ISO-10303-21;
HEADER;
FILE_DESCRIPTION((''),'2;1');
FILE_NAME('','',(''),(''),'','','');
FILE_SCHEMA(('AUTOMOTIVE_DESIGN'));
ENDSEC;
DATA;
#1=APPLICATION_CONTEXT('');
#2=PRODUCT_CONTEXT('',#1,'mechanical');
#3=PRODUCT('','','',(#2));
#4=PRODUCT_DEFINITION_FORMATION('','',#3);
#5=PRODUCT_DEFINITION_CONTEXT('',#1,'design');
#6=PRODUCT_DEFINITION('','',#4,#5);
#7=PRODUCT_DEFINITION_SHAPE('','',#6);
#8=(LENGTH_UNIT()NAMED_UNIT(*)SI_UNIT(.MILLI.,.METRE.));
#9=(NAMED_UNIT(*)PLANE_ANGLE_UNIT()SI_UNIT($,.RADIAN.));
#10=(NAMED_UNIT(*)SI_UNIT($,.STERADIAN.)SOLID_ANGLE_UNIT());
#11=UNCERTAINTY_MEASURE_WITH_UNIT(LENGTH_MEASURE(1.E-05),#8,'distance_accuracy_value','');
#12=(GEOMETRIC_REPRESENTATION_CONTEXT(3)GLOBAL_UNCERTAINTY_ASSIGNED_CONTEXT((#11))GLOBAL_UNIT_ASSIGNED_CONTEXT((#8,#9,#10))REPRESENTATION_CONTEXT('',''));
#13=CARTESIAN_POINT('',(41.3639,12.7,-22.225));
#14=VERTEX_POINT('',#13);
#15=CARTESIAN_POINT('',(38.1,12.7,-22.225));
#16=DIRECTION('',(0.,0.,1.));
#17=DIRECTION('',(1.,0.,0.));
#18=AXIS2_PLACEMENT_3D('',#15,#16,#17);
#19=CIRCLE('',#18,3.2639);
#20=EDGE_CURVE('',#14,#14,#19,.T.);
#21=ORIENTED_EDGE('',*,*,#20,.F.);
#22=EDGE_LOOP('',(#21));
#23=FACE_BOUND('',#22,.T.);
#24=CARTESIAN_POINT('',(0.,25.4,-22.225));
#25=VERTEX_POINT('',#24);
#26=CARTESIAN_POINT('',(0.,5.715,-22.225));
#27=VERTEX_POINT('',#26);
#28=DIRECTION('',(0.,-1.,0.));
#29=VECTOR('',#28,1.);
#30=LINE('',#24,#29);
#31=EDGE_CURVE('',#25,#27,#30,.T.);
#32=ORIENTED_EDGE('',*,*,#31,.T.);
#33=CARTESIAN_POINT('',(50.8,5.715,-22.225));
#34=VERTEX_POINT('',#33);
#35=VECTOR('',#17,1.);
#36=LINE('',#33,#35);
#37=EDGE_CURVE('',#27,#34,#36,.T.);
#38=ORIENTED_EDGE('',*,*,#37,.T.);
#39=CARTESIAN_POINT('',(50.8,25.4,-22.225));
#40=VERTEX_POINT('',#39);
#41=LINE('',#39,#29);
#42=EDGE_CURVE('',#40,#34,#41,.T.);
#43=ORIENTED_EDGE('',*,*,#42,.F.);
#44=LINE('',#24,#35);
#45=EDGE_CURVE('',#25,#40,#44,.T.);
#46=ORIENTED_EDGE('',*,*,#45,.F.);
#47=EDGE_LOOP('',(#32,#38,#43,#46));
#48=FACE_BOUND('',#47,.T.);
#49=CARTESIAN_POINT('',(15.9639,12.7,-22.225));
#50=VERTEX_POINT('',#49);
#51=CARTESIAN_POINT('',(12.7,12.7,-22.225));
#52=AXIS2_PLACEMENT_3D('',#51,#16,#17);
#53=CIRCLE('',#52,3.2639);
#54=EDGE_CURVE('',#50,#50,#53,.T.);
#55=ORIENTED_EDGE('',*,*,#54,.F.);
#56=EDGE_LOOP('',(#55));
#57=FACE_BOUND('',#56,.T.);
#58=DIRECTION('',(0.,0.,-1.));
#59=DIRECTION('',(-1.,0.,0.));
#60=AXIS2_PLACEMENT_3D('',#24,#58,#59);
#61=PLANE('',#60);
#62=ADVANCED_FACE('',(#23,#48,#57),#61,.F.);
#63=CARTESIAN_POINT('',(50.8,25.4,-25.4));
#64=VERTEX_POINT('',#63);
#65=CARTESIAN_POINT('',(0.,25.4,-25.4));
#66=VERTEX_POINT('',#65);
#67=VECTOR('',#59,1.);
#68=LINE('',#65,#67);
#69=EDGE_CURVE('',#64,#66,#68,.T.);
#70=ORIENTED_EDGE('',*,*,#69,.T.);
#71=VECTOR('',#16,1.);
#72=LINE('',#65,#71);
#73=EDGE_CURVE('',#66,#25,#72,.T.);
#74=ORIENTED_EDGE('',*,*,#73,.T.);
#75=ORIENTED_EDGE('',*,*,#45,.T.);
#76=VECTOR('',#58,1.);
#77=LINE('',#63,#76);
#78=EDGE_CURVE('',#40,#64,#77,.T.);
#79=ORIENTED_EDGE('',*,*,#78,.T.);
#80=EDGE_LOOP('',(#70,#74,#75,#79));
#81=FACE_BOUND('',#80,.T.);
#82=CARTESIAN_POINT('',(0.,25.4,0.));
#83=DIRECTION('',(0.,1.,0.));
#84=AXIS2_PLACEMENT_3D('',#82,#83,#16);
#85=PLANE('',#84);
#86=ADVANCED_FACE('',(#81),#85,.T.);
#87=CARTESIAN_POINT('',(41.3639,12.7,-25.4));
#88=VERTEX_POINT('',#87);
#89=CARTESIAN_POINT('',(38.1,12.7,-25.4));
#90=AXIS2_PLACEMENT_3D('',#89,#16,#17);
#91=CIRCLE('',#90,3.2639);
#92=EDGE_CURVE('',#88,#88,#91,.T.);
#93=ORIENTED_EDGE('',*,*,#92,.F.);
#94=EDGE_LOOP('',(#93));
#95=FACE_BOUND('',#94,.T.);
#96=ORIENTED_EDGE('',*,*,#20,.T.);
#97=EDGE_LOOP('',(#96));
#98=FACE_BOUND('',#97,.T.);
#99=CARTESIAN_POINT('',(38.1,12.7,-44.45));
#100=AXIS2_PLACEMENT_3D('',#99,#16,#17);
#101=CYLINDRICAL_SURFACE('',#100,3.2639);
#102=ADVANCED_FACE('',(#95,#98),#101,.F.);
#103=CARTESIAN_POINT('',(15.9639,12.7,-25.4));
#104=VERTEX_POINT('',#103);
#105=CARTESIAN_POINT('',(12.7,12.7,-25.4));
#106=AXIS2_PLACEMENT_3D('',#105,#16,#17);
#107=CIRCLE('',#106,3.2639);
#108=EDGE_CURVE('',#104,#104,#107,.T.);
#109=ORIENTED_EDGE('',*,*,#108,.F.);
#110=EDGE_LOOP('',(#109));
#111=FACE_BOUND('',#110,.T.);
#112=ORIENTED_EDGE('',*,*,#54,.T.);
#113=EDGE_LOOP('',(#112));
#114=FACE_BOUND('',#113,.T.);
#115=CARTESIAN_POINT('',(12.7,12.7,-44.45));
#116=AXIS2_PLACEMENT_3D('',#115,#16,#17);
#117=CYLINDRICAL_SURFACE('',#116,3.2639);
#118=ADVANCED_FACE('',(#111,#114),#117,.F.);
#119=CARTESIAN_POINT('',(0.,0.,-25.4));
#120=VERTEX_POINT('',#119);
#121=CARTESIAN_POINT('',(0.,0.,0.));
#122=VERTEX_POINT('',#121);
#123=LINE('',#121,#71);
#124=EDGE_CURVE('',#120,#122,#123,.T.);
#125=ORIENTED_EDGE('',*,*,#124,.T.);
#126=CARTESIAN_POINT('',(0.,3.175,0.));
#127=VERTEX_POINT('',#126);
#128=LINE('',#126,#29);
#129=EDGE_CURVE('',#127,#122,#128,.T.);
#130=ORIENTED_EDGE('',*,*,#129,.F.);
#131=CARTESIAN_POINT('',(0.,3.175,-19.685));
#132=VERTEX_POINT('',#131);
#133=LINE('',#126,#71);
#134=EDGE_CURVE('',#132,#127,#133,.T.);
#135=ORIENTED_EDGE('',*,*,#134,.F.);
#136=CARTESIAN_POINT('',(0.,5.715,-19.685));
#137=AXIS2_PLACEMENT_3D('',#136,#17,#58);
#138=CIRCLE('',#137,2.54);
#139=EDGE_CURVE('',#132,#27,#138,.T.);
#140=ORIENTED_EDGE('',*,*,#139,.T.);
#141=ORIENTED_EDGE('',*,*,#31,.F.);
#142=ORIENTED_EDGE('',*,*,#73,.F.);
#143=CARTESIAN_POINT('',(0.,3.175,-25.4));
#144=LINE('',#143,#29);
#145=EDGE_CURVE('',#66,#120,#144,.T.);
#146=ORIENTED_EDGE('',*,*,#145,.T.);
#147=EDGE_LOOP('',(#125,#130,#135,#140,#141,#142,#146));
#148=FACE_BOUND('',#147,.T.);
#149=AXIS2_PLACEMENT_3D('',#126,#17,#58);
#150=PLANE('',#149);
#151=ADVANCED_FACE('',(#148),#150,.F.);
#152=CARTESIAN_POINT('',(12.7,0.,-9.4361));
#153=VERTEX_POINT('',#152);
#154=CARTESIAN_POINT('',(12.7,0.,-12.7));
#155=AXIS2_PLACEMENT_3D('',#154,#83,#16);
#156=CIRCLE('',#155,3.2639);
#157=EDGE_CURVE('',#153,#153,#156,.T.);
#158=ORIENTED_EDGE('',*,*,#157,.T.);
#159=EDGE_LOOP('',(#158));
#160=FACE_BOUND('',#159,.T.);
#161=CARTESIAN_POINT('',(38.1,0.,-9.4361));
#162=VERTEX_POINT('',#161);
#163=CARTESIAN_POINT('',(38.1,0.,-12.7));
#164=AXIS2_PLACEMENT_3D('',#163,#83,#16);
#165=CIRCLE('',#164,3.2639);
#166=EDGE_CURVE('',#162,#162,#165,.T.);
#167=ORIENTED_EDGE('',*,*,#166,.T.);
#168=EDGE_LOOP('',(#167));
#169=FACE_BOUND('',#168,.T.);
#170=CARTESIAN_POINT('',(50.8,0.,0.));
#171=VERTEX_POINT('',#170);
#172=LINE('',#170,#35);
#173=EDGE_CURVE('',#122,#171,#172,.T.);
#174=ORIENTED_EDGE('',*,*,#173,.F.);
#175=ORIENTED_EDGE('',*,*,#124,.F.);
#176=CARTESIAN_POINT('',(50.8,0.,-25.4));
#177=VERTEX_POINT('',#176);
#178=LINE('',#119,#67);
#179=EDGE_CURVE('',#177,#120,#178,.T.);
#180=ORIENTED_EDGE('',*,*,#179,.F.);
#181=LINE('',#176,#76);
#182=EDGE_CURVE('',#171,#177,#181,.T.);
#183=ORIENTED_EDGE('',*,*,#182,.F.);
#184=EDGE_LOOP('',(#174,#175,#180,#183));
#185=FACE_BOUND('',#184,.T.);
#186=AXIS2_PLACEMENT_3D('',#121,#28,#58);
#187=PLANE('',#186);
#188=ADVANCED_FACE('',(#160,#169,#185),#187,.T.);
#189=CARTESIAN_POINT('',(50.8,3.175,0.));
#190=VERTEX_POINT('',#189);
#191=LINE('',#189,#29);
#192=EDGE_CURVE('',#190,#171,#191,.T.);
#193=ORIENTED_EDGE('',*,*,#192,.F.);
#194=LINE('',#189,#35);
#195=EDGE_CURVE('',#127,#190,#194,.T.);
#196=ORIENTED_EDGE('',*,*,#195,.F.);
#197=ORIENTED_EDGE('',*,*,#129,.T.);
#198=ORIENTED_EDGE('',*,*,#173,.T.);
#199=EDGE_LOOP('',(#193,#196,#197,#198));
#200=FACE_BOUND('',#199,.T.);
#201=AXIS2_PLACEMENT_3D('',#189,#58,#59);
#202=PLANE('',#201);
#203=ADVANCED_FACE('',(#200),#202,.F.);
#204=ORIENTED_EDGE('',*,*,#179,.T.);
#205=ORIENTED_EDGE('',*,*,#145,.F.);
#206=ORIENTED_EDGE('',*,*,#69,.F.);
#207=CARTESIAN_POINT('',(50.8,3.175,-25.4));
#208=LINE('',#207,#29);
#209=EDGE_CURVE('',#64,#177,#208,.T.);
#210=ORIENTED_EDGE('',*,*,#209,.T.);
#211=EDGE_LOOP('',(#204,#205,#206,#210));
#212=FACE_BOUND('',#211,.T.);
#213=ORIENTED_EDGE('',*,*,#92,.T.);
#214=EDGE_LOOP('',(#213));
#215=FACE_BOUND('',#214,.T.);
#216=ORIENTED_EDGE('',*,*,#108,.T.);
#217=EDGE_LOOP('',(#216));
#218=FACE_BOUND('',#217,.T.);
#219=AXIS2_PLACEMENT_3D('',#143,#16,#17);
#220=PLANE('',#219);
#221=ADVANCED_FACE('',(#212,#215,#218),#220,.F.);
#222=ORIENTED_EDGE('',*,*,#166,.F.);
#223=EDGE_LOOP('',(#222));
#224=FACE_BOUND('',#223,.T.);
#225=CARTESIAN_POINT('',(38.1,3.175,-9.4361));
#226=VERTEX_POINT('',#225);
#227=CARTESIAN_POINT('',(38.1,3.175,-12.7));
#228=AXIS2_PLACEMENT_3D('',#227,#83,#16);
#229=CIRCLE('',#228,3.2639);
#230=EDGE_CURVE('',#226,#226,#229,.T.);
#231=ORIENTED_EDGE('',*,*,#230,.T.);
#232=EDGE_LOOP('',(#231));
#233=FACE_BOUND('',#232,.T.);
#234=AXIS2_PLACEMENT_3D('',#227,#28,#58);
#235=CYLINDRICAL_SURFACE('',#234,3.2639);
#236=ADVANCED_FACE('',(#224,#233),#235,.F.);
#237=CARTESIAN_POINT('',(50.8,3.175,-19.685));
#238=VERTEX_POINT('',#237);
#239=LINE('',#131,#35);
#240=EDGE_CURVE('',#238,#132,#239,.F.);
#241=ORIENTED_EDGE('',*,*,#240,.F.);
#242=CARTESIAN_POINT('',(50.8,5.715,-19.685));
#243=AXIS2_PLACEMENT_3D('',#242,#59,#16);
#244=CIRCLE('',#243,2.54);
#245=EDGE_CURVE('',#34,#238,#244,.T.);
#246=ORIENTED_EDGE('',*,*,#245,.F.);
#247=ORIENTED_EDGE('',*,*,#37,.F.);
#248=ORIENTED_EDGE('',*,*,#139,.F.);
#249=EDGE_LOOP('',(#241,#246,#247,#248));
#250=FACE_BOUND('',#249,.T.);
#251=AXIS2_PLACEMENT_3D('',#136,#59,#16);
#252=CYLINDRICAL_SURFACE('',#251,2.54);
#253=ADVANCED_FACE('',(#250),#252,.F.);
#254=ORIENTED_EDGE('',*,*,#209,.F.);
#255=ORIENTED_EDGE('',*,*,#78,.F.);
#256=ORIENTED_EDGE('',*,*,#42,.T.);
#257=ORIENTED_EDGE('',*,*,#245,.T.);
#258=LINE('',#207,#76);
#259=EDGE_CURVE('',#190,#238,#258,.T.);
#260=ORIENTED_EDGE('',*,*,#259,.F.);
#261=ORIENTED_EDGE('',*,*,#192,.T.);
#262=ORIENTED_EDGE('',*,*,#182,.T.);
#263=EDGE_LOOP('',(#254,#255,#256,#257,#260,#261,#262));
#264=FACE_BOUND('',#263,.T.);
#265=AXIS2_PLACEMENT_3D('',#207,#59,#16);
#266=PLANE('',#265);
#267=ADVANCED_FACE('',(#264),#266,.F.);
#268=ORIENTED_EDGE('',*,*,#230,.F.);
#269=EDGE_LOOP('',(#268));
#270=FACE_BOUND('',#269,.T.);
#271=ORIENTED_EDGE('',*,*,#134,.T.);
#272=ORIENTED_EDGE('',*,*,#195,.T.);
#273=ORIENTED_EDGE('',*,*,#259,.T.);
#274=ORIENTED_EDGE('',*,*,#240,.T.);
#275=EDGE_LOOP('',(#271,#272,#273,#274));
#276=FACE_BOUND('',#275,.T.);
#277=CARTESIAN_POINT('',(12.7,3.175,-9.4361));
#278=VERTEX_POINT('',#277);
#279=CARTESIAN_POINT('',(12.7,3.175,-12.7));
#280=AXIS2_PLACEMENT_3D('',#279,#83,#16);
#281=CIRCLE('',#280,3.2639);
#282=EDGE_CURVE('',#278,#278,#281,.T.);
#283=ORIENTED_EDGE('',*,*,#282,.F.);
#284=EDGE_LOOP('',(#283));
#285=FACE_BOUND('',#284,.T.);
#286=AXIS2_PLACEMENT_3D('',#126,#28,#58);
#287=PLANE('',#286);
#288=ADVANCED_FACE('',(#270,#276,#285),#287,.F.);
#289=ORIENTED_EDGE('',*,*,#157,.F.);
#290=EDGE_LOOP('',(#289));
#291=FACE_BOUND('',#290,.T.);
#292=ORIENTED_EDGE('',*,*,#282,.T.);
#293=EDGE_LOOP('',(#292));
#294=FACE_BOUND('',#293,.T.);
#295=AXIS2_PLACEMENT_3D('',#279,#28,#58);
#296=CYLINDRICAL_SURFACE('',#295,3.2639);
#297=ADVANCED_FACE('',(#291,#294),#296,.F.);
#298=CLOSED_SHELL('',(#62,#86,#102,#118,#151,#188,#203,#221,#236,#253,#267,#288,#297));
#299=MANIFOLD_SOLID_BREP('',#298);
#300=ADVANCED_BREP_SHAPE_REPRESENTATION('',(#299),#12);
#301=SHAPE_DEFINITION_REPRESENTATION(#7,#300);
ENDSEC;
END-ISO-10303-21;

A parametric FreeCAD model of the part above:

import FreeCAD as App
import Part
import Sketcher

V = App.Vector
Q = App.Units.Quantity


def edges_at(feature, points):
    """Names of the edges that pass closest to the given points."""
    edges = feature.Shape.Edges
    near = lambda p: min(range(len(edges)), key=lambda i: edges[i].distToShape(Part.Vertex(*p))[0])
    return sorted({f"Edge{near(p) + 1}" for p in points})

doc = App.newDocument("Part")
body = doc.addObject("PartDesign::Body", "Body")

sketch1 = doc.addObject("Sketcher::SketchObject", "Sketch")
body.addObject(sketch1)
sketch1.AttachmentSupport = (doc.XZ_Plane, [""])
sketch1.MapMode = "FlatFace"
sketch1.addGeometry([
    Part.LineSegment(V(0, -25.4, 0), V(0, 0, 0)),
    Part.LineSegment(V(0, 0, 0), V(50.8, 0, 0)),
    Part.LineSegment(V(50.8, 0, 0), V(50.8, -25.4, 0)),
    Part.LineSegment(V(50.8, -25.4, 0), V(0, -25.4, 0)),
    Part.Circle(V(12.7, -12.7, 0), V(0, 0, 1), 3.3),
    Part.Circle(V(38.1, -12.7, 0), V(0, 0, 1), 3.3),
], False)
sketch1.addConstraint([
    Sketcher.Constraint("Coincident", 0, 2, 1, 1),
    Sketcher.Constraint("Coincident", 1, 2, 2, 1),
    Sketcher.Constraint("Coincident", 2, 2, 3, 1),
    Sketcher.Constraint("Coincident", 3, 2, 0, 1),
    Sketcher.Constraint("Vertical", 0),
    Sketcher.Constraint("Horizontal", 1),
    Sketcher.Constraint("Vertical", 2),
    Sketcher.Constraint("Horizontal", 3),
    Sketcher.Constraint("Coincident", 0, 2, -1, 1),
    Sketcher.Constraint("Equal", 4, 5),
    Sketcher.Constraint("Horizontal", 4, 3, 5, 3),
    Sketcher.Constraint("DistanceX", 1, 1, 1, 2, Q("2 in")),
    Sketcher.Constraint("DistanceY", 0, 1, 0, 2, Q("1 in")),
    Sketcher.Constraint("Diameter", 4, Q("0.257 in")),
    Sketcher.Constraint("DistanceX", 4, 3, 5, 3, Q("1 in")),
    Sketcher.Constraint("DistanceX", -1, 1, 4, 3, Q("0.5 in")),
    Sketcher.Constraint("DistanceY", 4, 3, -1, 1, Q("0.5 in")),
])
pad1 = doc.addObject("PartDesign::Pad", "Pad")
body.addObject(pad1)
pad1.Profile = sketch1
pad1.Length = Q("0.125 in")
pad1.Reversed = True

sketch2 = doc.addObject("Sketcher::SketchObject", "Sketch001")
body.addObject(sketch2)
sketch2.AttachmentSupport = (doc.XZ_Plane, [""])
sketch2.MapMode = "FlatFace"
sketch2.AttachmentOffset = App.Placement(V(0, 0, -0.125 * 25.4), App.Rotation())
sketch2.addGeometry([
    Part.LineSegment(V(0, -25.4, 0), V(0, -22.2, 0)),
    Part.LineSegment(V(0, -22.2, 0), V(50.8, -22.2, 0)),
    Part.LineSegment(V(50.8, -22.2, 0), V(50.8, -25.4, 0)),
    Part.LineSegment(V(50.8, -25.4, 0), V(0, -25.4, 0)),
], False)
sketch2.addConstraint([
    Sketcher.Constraint("Coincident", 0, 2, 1, 1),
    Sketcher.Constraint("Coincident", 1, 2, 2, 1),
    Sketcher.Constraint("Coincident", 2, 2, 3, 1),
    Sketcher.Constraint("Coincident", 3, 2, 0, 1),
    Sketcher.Constraint("Vertical", 0),
    Sketcher.Constraint("Horizontal", 1),
    Sketcher.Constraint("Vertical", 2),
    Sketcher.Constraint("Horizontal", 3),
    Sketcher.Constraint("PointOnObject", 0, 2, -2),
    Sketcher.Constraint("DistanceX", 1, 1, 1, 2, Q("2 in")),
    Sketcher.Constraint("DistanceY", 2, 2, -1, 1, Q("1 in")),
    Sketcher.Constraint("DistanceY", 0, 1, 0, 2, Q("0.125 in")),
])
pad2 = doc.addObject("PartDesign::Pad", "Pad001")
body.addObject(pad2)
pad2.Profile = sketch2
pad2.Length = Q("0.875 in")
pad2.Reversed = True

sketch3 = doc.addObject("Sketcher::SketchObject", "Sketch002")
body.addObject(sketch3)
sketch3.AttachmentSupport = (doc.XY_Plane, [""])
sketch3.MapMode = "FlatFace"
sketch3.AttachmentOffset = App.Placement(V(0, 0, -0.875 * 25.4), App.Rotation())
sketch3.addGeometry([
    Part.Circle(V(38.1, 12.7, 0), V(0, 0, 1), 3.3),
    Part.Circle(V(12.7, 12.7, 0), V(0, 0, 1), 3.3),
], False)
sketch3.addConstraint([
    Sketcher.Constraint("Equal", 0, 1),
    Sketcher.Constraint("Horizontal", 0, 3, 1, 3),
    Sketcher.Constraint("Diameter", 0, Q("0.257 in")),
    Sketcher.Constraint("DistanceX", 1, 3, 0, 3, Q("1 in")),
    Sketcher.Constraint("DistanceX", -1, 1, 0, 3, Q("1.5 in")),
    Sketcher.Constraint("DistanceY", -1, 1, 0, 3, Q("0.5 in")),
])
pocket1 = doc.addObject("PartDesign::Pocket", "Pocket")
body.addObject(pocket1)
pocket1.Profile = sketch3
pocket1.Length = Q("0.875 in")
doc.recompute()

fillet = doc.addObject("PartDesign::Fillet", "Fillet")
body.addObject(fillet)
fillet.Base = (pocket1, edges_at(pocket1, [(25.4, 3.175, -22.225)]))
fillet.Radius = Q("0.1 in")

doc.recompute()
